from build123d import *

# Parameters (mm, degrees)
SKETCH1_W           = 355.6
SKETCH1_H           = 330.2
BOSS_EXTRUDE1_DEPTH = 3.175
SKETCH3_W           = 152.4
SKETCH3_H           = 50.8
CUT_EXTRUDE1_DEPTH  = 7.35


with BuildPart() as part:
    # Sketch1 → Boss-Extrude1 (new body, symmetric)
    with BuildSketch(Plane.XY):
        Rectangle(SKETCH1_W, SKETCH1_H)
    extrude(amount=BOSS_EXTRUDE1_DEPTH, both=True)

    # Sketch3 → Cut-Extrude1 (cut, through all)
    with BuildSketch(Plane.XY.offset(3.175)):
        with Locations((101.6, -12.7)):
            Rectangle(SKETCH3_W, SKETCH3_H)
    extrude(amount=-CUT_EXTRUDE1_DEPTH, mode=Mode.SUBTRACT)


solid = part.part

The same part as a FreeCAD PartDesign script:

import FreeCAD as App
import Part
import Sketcher
Q = App.Units.Quantity

doc = App.newDocument("Part")
params = doc.addObject("Spreadsheet::Sheet", "Params")
for row, (alias, value) in enumerate([
    ("sketch1_width", "14 in"),
    ("sketch1_height", "13 in"),
    ("pad1_length", "0.25 in"),
    ("sketch2_width", "6 in"),
    ("sketch2_height", "2 in"),
], start=1):
    params.set(f"A{row}", alias)
    params.set(f"B{row}", "=" + value)
    params.setAlias(f"B{row}", alias)

body = doc.addObject("PartDesign::Body", "Body")

sketch1 = body.newObject("Sketcher::SketchObject", "Sketch")
sketch1.AttachmentSupport = (doc.getObject("XY_Plane"), [""])
sketch1.MapMode = "FlatFace"
sketch1.addGeometry([
    Part.LineSegment(App.Vector(-178, 165, 0), App.Vector(-178, -165, 0)),
    Part.LineSegment(App.Vector(-178, -165, 0), App.Vector(178, -165, 0)),
    Part.LineSegment(App.Vector(178, -165, 0), App.Vector(178, 165, 0)),
    Part.LineSegment(App.Vector(178, 165, 0), App.Vector(-178, 165, 0)),
], False)
sketch1.addConstraint([
    Sketcher.Constraint("Coincident", 0, 2, 1, 1),
    Sketcher.Constraint("Coincident", 1, 2, 2, 1),
    Sketcher.Constraint("Coincident", 2, 2, 3, 1),
    Sketcher.Constraint("Coincident", 3, 2, 0, 1),
    Sketcher.Constraint("Vertical", 0),
    Sketcher.Constraint("Horizontal", 1),
    Sketcher.Constraint("Vertical", 2),
    Sketcher.Constraint("Horizontal", 3),
    Sketcher.Constraint("Symmetric", 0, 2, 2, 2, -1, 1),
    Sketcher.Constraint("DistanceX", 1, 1, 1, 2, Q("14 in")),
    Sketcher.Constraint("DistanceY", 0, 2, 0, 1, Q("13 in")),
])
sketch1.setExpression("Constraints[9]", "Params.sketch1_width")
sketch1.setExpression("Constraints[10]", "Params.sketch1_height")
pad1 = body.newObject("PartDesign::Pad", "Pad")
pad1.Profile = sketch1
pad1.setExpression("Length", "Params.pad1_length")
pad1.Midplane = True

sketch2 = body.newObject("Sketcher::SketchObject", "Sketch001")
sketch2.AttachmentSupport = (doc.getObject("XY_Plane"), [""])
sketch2.MapMode = "FlatFace"
sketch2.AttachmentOffset = App.Placement(App.Vector(0, 0, 0.125 * 25.4), App.Rotation())
sketch2.addGeometry([
    Part.LineSegment(App.Vector(25, 13, 0), App.Vector(25, -38, 0)),
    Part.LineSegment(App.Vector(25, -38, 0), App.Vector(178, -38, 0)),
    Part.LineSegment(App.Vector(178, -38, 0), App.Vector(178, 13, 0)),
    Part.LineSegment(App.Vector(178, 13, 0), App.Vector(25, 13, 0)),
], False)
sketch2.addConstraint([
    Sketcher.Constraint("Coincident", 0, 2, 1, 1),
    Sketcher.Constraint("Coincident", 1, 2, 2, 1),
    Sketcher.Constraint("Coincident", 2, 2, 3, 1),
    Sketcher.Constraint("Coincident", 3, 2, 0, 1),
    Sketcher.Constraint("Vertical", 0),
    Sketcher.Constraint("Horizontal", 1),
    Sketcher.Constraint("Vertical", 2),
    Sketcher.Constraint("Horizontal", 3),
    Sketcher.Constraint("DistanceX", 1, 1, 1, 2, Q("6 in")),
    Sketcher.Constraint("DistanceY", 0, 2, 0, 1, Q("2 in")),
    Sketcher.Constraint("DistanceX", -1, 1, 0, 2, Q("1 in")),
    Sketcher.Constraint("DistanceY", 0, 2, -1, 1, Q("1.5 in")),
])
sketch2.setExpression("Constraints[8]", "Params.sketch2_width")
sketch2.setExpression("Constraints[9]", "Params.sketch2_height")
pocket1 = body.newObject("PartDesign::Pocket", "Pocket")
pocket1.Profile = sketch2
pocket1.Type = "ThroughAll"

doc.recompute()
